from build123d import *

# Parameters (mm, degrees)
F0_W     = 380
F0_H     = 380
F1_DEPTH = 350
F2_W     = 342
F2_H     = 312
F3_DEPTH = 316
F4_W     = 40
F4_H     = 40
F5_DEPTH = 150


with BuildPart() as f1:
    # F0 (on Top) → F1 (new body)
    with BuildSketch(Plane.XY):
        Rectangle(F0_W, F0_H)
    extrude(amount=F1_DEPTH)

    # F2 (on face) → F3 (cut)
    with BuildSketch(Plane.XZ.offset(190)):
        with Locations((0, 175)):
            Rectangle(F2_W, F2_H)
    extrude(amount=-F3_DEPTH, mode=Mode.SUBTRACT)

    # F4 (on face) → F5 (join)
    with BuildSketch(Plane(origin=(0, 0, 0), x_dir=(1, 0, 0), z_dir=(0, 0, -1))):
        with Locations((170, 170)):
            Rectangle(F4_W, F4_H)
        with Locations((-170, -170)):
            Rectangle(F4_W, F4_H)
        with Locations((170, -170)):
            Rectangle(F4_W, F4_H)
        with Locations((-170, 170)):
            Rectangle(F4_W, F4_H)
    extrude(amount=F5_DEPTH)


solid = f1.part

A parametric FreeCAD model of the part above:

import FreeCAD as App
import Part
import Sketcher

V = App.Vector
Q = App.Units.Quantity

doc = App.newDocument("Part")
body = doc.addObject("PartDesign::Body", "Body")

# Sketch on XY plane
sketch1 = body.newObject("Sketcher::SketchObject", "Sketch")
sketch1.AttachmentSupport = (doc.getObject("XY_Plane"), [""])
sketch1.MapMode = "FlatFace"
sketch1.addGeometry([
    Part.LineSegment(V(-190, 190, 0), V(-190, -190, 0)),
    Part.LineSegment(V(-190, -190, 0), V(190, -190, 0)),
    Part.LineSegment(V(190, -190, 0), V(190, 190, 0)),
    Part.LineSegment(V(190, 190, 0), V(-190, 190, 0)),
], False)
sketch1.addConstraint([
    Sketcher.Constraint("Coincident", 0, 2, 1, 1),
    Sketcher.Constraint("Coincident", 1, 2, 2, 1),
    Sketcher.Constraint("Coincident", 2, 2, 3, 1),
    Sketcher.Constraint("Coincident", 3, 2, 0, 1),
    Sketcher.Constraint("Vertical", 0),
    Sketcher.Constraint("Horizontal", 1),
    Sketcher.Constraint("Vertical", 2),
    Sketcher.Constraint("Horizontal", 3),
    Sketcher.Constraint("Symmetric", 0, 2, 2, 2, -1, 1),
    Sketcher.Constraint("Equal", 3, 0),
    Sketcher.Constraint("DistanceX", 1, 1, 1, 2, Q("380 mm")),
])
pad1 = body.newObject("PartDesign::Pad", "Pad")
pad1.Profile = sketch1
pad1.Length = 350

# Sketch on XZ plane
sketch2 = body.newObject("Sketcher::SketchObject", "Sketch001")
sketch2.AttachmentSupport = (doc.getObject("XZ_Plane"), [""])
sketch2.MapMode = "FlatFace"
sketch2.AttachmentOffset = App.Placement(V(0, 0, 190), App.Rotation())
sketch2.addGeometry([
    Part.LineSegment(V(-171, 331, 0), V(-171, 19, 0)),
    Part.LineSegment(V(-171, 19, 0), V(171, 19, 0)),
    Part.LineSegment(V(171, 19, 0), V(171, 331, 0)),
    Part.LineSegment(V(171, 331, 0), V(-171, 331, 0)),
], False)
sketch2.addConstraint([
    Sketcher.Constraint("Coincident", 0, 2, 1, 1),
    Sketcher.Constraint("Coincident", 1, 2, 2, 1),
    Sketcher.Constraint("Coincident", 2, 2, 3, 1),
    Sketcher.Constraint("Coincident", 3, 2, 0, 1),
    Sketcher.Constraint("Vertical", 0),
    Sketcher.Constraint("Horizontal", 1),
    Sketcher.Constraint("Vertical", 2),
    Sketcher.Constraint("Horizontal", 3),
    Sketcher.Constraint("DistanceX", 1, 1, 1, 2, Q("342 mm")),
    Sketcher.Constraint("DistanceY", 0, 2, 0, 1, Q("312 mm")),
    Sketcher.Constraint("DistanceX", 0, 2, -1, 1, Q("171 mm")),
    Sketcher.Constraint("DistanceY", -1, 1, 0, 2, Q("19 mm")),
])
pocket1 = body.newObject("PartDesign::Pocket", "Pocket")
pocket1.Profile = sketch2
pocket1.Length = 316

# Sketch on XY plane
sketch3 = body.newObject("Sketcher::SketchObject", "Sketch002")
sketch3.AttachmentSupport = (doc.getObject("XY_Plane"), [""])
sketch3.MapMode = "FlatFace"
sketch3.addGeometry([
    Part.LineSegment(V(150, -190, 0), V(150, -150, 0)),  # 0
    Part.LineSegment(V(150, -150, 0), V(190, -150, 0)),  # 1
    Part.LineSegment(V(190, -150, 0), V(190, -190, 0)),  # 2
    Part.LineSegment(V(190, -190, 0), V(150, -190, 0)),  # 3
    Part.LineSegment(V(-190, 150, 0), V(-190, 190, 0)),  # 4
    Part.LineSegment(V(-190, 190, 0), V(-150, 190, 0)),  # 5
    Part.LineSegment(V(-150, 190, 0), V(-150, 150, 0)),  # 6
    Part.LineSegment(V(-150, 150, 0), V(-190, 150, 0)),  # 7
    Part.LineSegment(V(150, 150, 0), V(150, 190, 0)),  # 8
    Part.LineSegment(V(150, 190, 0), V(190, 190, 0)),  # 9
    Part.LineSegment(V(190, 190, 0), V(190, 150, 0)),  # 10
    Part.LineSegment(V(190, 150, 0), V(150, 150, 0)),  # 11
    Part.LineSegment(V(-190, -190, 0), V(-190, -150, 0)),  # 12
    Part.LineSegment(V(-190, -150, 0), V(-150, -150, 0)),  # 13
    Part.LineSegment(V(-150, -150, 0), V(-150, -190, 0)),  # 14
    Part.LineSegment(V(-150, -190, 0), V(-190, -190, 0)),  # 15
], False)
sketch3.addConstraint([
    Sketcher.Constraint("Coincident", 0, 2, 1, 1),
    Sketcher.Constraint("Coincident", 1, 2, 2, 1),
    Sketcher.Constraint("Coincident", 2, 2, 3, 1),
    Sketcher.Constraint("Coincident", 3, 2, 0, 1),
    Sketcher.Constraint("Coincident", 4, 2, 5, 1),
    Sketcher.Constraint("Coincident", 5, 2, 6, 1),
    Sketcher.Constraint("Coincident", 6, 2, 7, 1),
    Sketcher.Constraint("Coincident", 7, 2, 4, 1),
    Sketcher.Constraint("Coincident", 8, 2, 9, 1),
    Sketcher.Constraint("Coincident", 9, 2, 10, 1),
    Sketcher.Constraint("Coincident", 10, 2, 11, 1),
    Sketcher.Constraint("Coincident", 11, 2, 8, 1),
    Sketcher.Constraint("Coincident", 12, 2, 13, 1),
    Sketcher.Constraint("Coincident", 13, 2, 14, 1),
    Sketcher.Constraint("Coincident", 14, 2, 15, 1),
    Sketcher.Constraint("Coincident", 15, 2, 12, 1),
    Sketcher.Constraint("Vertical", 0),
    Sketcher.Constraint("Horizontal", 1),
    Sketcher.Constraint("Vertical", 2),
    Sketcher.Constraint("Horizontal", 3),
    Sketcher.Constraint("Vertical", 4),
    Sketcher.Constraint("Horizontal", 5),
    Sketcher.Constraint("Vertical", 6),
    Sketcher.Constraint("Horizontal", 7),
    Sketcher.Constraint("Vertical", 8),
    Sketcher.Constraint("Horizontal", 9),
    Sketcher.Constraint("Vertical", 10),
    Sketcher.Constraint("Horizontal", 11),
    Sketcher.Constraint("Vertical", 12),
    Sketcher.Constraint("Horizontal", 13),
    Sketcher.Constraint("Vertical", 14),
    Sketcher.Constraint("Horizontal", 15),
    Sketcher.Constraint("Symmetric", 2, 2, 4, 2, -1, 1),
    Sketcher.Constraint("Symmetric", 0, 2, 6, 2, -1, 1),
    Sketcher.Constraint("Symmetric", 10, 2, 12, 2, -1, 1),
    Sketcher.Constraint("Symmetric", 8, 2, 14, 2, -1, 1),
    Sketcher.Constraint("Symmetric", 5, 2, 8, 2, -2),
    Sketcher.Constraint("Symmetric", 7, 2, 10, 2, -2),
    Sketcher.Constraint("Equal", 15, 0),
    Sketcher.Constraint("DistanceX", 1, 1, 1, 2, Q("40 mm")),
    Sketcher.Constraint("DistanceX", -1, 1, 0, 2, Q("150 mm")),
    Sketcher.Constraint("DistanceY", 0, 2, -1, 1, Q("150 mm")),
])
pad2 = body.newObject("PartDesign::Pad", "Pad001")
pad2.Profile = sketch3
pad2.Length = 150
pad2.Reversed = True

doc.recompute()
